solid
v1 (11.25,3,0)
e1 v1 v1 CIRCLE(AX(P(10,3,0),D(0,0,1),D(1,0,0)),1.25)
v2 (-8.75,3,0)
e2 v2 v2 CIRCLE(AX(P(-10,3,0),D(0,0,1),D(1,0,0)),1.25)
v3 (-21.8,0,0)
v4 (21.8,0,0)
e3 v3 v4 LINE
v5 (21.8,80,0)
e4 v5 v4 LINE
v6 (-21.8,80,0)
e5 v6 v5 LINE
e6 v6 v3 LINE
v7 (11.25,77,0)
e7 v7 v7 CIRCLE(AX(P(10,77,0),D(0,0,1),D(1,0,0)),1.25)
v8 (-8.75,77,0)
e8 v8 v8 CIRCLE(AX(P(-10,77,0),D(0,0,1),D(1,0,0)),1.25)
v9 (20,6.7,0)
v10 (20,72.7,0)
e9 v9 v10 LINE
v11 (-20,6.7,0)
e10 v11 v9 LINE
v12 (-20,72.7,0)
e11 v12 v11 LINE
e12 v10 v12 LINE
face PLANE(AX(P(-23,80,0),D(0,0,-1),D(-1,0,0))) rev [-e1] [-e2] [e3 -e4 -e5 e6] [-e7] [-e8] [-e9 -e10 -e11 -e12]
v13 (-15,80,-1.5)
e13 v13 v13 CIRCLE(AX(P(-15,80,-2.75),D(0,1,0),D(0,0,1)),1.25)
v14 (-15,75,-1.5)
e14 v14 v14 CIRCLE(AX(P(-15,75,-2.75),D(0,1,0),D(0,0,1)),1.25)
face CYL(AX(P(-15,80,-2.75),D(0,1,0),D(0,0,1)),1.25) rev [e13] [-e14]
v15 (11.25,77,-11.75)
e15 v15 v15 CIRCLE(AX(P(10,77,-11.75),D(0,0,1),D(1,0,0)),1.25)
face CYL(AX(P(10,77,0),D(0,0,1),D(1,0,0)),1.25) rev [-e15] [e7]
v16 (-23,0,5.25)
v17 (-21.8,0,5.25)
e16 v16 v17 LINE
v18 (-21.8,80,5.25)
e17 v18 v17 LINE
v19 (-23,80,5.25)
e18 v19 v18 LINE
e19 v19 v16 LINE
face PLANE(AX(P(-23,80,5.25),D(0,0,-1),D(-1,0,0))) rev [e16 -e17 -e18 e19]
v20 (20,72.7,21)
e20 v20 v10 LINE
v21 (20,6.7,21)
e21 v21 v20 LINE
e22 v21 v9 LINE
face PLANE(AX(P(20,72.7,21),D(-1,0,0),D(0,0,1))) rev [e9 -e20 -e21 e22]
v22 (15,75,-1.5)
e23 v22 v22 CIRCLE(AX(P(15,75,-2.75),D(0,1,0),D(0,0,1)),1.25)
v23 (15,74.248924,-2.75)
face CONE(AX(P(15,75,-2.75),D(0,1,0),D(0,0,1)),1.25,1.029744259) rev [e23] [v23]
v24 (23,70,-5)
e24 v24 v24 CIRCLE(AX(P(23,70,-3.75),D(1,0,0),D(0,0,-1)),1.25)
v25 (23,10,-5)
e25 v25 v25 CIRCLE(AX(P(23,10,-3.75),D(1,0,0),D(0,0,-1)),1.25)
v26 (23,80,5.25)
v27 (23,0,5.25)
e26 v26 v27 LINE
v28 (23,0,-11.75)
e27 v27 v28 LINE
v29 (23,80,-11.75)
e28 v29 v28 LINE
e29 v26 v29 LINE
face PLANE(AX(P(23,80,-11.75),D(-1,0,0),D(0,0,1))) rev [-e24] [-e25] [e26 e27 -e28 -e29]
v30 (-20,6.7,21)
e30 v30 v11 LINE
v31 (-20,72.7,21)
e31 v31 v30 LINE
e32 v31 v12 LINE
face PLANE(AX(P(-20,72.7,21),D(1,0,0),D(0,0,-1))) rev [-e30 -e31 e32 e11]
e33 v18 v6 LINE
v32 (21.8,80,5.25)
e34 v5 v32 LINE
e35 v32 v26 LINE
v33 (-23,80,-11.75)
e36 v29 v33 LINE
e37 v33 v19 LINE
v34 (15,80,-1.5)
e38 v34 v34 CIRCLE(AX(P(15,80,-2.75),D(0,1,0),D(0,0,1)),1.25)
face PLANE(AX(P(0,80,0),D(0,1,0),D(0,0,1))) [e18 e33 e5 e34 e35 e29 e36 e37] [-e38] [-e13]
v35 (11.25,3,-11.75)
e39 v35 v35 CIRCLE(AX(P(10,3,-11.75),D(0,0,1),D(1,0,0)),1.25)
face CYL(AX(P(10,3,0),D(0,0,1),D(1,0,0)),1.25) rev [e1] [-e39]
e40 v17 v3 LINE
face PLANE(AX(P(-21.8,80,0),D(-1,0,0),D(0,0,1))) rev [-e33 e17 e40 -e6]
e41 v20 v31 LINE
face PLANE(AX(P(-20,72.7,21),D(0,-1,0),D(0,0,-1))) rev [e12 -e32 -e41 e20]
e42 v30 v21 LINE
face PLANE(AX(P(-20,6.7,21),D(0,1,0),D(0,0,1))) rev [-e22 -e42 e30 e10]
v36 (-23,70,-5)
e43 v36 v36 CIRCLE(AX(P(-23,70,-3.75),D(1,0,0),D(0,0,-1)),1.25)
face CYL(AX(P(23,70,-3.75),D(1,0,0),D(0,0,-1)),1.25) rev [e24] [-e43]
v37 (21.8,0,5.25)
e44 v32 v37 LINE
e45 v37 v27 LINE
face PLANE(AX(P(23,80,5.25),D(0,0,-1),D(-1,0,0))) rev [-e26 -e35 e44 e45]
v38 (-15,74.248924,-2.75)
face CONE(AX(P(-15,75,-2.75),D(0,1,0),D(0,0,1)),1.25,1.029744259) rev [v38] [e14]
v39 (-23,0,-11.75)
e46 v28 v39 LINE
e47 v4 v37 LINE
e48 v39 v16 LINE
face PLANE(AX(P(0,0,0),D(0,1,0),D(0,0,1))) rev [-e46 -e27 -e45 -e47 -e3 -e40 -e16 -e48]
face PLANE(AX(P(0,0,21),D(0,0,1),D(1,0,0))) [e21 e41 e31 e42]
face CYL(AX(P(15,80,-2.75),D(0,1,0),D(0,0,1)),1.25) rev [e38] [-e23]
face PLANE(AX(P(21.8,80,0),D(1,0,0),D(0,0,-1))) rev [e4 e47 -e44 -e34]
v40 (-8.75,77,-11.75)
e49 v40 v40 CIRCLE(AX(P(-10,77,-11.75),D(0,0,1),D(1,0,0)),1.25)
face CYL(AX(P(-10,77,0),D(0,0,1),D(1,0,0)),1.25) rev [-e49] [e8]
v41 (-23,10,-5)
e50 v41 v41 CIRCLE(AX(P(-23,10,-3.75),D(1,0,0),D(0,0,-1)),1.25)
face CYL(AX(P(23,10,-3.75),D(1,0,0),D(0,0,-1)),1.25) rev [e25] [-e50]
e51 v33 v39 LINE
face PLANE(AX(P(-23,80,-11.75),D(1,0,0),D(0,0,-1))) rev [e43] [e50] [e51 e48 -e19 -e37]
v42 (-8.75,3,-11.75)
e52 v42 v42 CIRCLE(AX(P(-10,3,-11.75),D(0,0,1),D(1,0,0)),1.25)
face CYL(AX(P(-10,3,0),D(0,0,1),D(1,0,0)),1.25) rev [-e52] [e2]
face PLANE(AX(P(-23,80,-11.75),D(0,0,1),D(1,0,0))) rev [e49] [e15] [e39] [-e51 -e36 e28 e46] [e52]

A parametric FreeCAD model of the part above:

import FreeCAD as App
import Part
import Sketcher

V = App.Vector
Q = App.Units.Quantity

doc = App.newDocument("Part")
body = doc.addObject("PartDesign::Body", "Body")

# Sketch on XZ plane
sketch1 = doc.addObject("Sketcher::SketchObject", "Sketch")
body.addObject(sketch1)
sketch1.AttachmentSupport = (doc.XZ_Plane, [""])
sketch1.MapMode = "FlatFace"
sketch1.addGeometry([
    Part.LineSegment(V(-23, -11.75, 0), V(-23, 0, 0)),
    Part.LineSegment(V(-23, 0, 0), V(23, 0, 0)),
    Part.LineSegment(V(23, 0, 0), V(23, -11.75, 0)),
    Part.LineSegment(V(23, -11.75, 0), V(-23, -11.75, 0)),
], False)
sketch1.addConstraint([
    Sketcher.Constraint("Coincident", 0, 2, 1, 1),
    Sketcher.Constraint("Coincident", 1, 2, 2, 1),
    Sketcher.Constraint("Coincident", 2, 2, 3, 1),
    Sketcher.Constraint("Coincident", 3, 2, 0, 1),
    Sketcher.Constraint("Vertical", 0),
    Sketcher.Constraint("Horizontal", 1),
    Sketcher.Constraint("Vertical", 2),
    Sketcher.Constraint("Horizontal", 3),
    Sketcher.Constraint("Symmetric", 0, 2, 1, 2, -1, 1),
    Sketcher.Constraint("DistanceX", 1, 1, 1, 2, Q("46 mm")),
    Sketcher.Constraint("DistanceY", 0, 1, 0, 2, Q("11.75 mm")),
])
pad1 = doc.addObject("PartDesign::Pad", "Pad")
body.addObject(pad1)
pad1.Profile = sketch1
pad1.Length = 80
pad1.Reversed = True

# Sketch on XZ plane
sketch2 = doc.addObject("Sketcher::SketchObject", "Sketch001")
body.addObject(sketch2)
sketch2.AttachmentSupport = (doc.XZ_Plane, [""])
sketch2.MapMode = "FlatFace"
sketch2.addGeometry([
    Part.LineSegment(V(-23, 0, 0), V(-23, 5.25, 0)),  # 0
    Part.LineSegment(V(-23, 5.25, 0), V(-21.8, 5.25, 0)),  # 1
    Part.LineSegment(V(-21.8, 5.25, 0), V(-21.8, 0, 0)),  # 2
    Part.LineSegment(V(-21.8, 0, 0), V(-23, 0, 0)),  # 3
    Part.LineSegment(V(21.8, 0, 0), V(21.8, 5.25, 0)),  # 4
    Part.LineSegment(V(21.8, 5.25, 0), V(23, 5.25, 0)),  # 5
    Part.LineSegment(V(23, 5.25, 0), V(23, 0, 0)),  # 6
    Part.LineSegment(V(23, 0, 0), V(21.8, 0, 0)),  # 7
], False)
sketch2.addConstraint([
    Sketcher.Constraint("Coincident", 0, 2, 1, 1),
    Sketcher.Constraint("Coincident", 1, 2, 2, 1),
    Sketcher.Constraint("Coincident", 2, 2, 3, 1),
    Sketcher.Constraint("Coincident", 3, 2, 0, 1),
    Sketcher.Constraint("Coincident", 4, 2, 5, 1),
    Sketcher.Constraint("Coincident", 5, 2, 6, 1),
    Sketcher.Constraint("Coincident", 6, 2, 7, 1),
    Sketcher.Constraint("Coincident", 7, 2, 4, 1),
    Sketcher.Constraint("Vertical", 0),
    Sketcher.Constraint("Horizontal", 1),
    Sketcher.Constraint("Vertical", 2),
    Sketcher.Constraint("Horizontal", 3),
    Sketcher.Constraint("Vertical", 4),
    Sketcher.Constraint("Horizontal", 5),
    Sketcher.Constraint("Vertical", 6),
    Sketcher.Constraint("Horizontal", 7),
    Sketcher.Constraint("Symmetric", 3, 2, 6, 2, -1, 1),
    Sketcher.Constraint("Symmetric", 1, 2, 4, 2, -2),
    Sketcher.Constraint("PointOnObject", 2, 2, -1),
    Sketcher.Constraint("DistanceX", 1, 1, 1, 2, Q("1.2 mm")),
    Sketcher.Constraint("DistanceX", 0, 2, -1, 1, Q("23 mm")),
    Sketcher.Constraint("DistanceY", 0, 1, 0, 2, Q("5.25 mm")),
])
pad2 = doc.addObject("PartDesign::Pad", "Pad001")
body.addObject(pad2)
pad2.Profile = sketch2
pad2.Length = 80
pad2.Reversed = True

# Sketch on XY plane
sketch3 = doc.addObject("Sketcher::SketchObject", "Sketch002")
body.addObject(sketch3)
sketch3.AttachmentSupport = (doc.XY_Plane, [""])
sketch3.MapMode = "FlatFace"
sketch3.addGeometry([
    Part.LineSegment(V(-20, 72.7, 0), V(-20, 6.7, 0)),
    Part.LineSegment(V(-20, 6.7, 0), V(20, 6.7, 0)),
    Part.LineSegment(V(20, 6.7, 0), V(20, 72.7, 0)),
    Part.LineSegment(V(20, 72.7, 0), V(-20, 72.7, 0)),
], False)
sketch3.addConstraint([
    Sketcher.Constraint("Coincident", 0, 2, 1, 1),
    Sketcher.Constraint("Coincident", 1, 2, 2, 1),
    Sketcher.Constraint("Coincident", 2, 2, 3, 1),
    Sketcher.Constraint("Coincident", 3, 2, 0, 1),
    Sketcher.Constraint("Vertical", 0),
    Sketcher.Constraint("Horizontal", 1),
    Sketcher.Constraint("Vertical", 2),
    Sketcher.Constraint("Horizontal", 3),
    Sketcher.Constraint("DistanceX", 1, 1, 1, 2, Q("40 mm")),
    Sketcher.Constraint("DistanceY", 0, 2, 0, 1, Q("66 mm")),
    Sketcher.Constraint("DistanceX", 0, 2, -1, 1, Q("20 mm")),
    Sketcher.Constraint("DistanceY", -1, 1, 0, 2, Q("6.7 mm")),
])
pad3 = doc.addObject("PartDesign::Pad", "Pad002")
body.addObject(pad3)
pad3.Profile = sketch3
pad3.Length = 21

# Sketch on XY plane
sketch4 = doc.addObject("Sketcher::SketchObject", "Sketch003")
body.addObject(sketch4)
sketch4.AttachmentSupport = (doc.XY_Plane, [""])
sketch4.MapMode = "FlatFace"
sketch4.addGeometry([
    Part.Circle(V(-10, 77, 0), V(0, 0, 1), 1.25),
    Part.Circle(V(10, 77, 0), V(0, 0, 1), 1.25),
    Part.Circle(V(-10, 3, 0), V(0, 0, 1), 1.25),
    Part.Circle(V(10, 3, 0), V(0, 0, 1), 1.25),
], False)
sketch4.addConstraint([
    Sketcher.Constraint("Equal", 0, 1),
    Sketcher.Constraint("Equal", 1, 2),
    Sketcher.Constraint("Equal", 2, 3),
    Sketcher.Constraint("Symmetric", 0, 3, 1, 3, -2),
    Sketcher.Constraint("Symmetric", 2, 3, 3, 3, -2),
    Sketcher.Constraint("Vertical", 0, 3, 2, 3),
    Sketcher.Constraint("Diameter", 0, Q("2.5 mm")),
    Sketcher.Constraint("DistanceX", 0, 3, -1, 1, Q("10 mm")),
    Sketcher.Constraint("DistanceY", -1, 1, 0, 3, Q("77 mm")),
    Sketcher.Constraint("DistanceY", -1, 1, 2, 3, Q("3 mm")),
])
doc.recompute()
hole = doc.addObject("PartDesign::Hole", "Hole")
body.addObject(hole)
hole.Profile = sketch4
hole.ThreadType = "None"
hole.Diameter = 2.5
hole.DepthType = "ThroughAll"

# Sketch on XZ plane
sketch5 = doc.addObject("Sketcher::SketchObject", "Sketch004")
body.addObject(sketch5)
sketch5.AttachmentSupport = (doc.XZ_Plane, [""])
sketch5.MapMode = "FlatFace"
sketch5.AttachmentOffset = App.Placement(V(0, 0, -80), App.Rotation())
sketch5.addGeometry([
    Part.Circle(V(-15, -2.75, 0), V(0, 0, 1), 1.25),
    Part.Circle(V(15, -2.75, 0), V(0, 0, 1), 1.25),
], False)
sketch5.addConstraint([
    Sketcher.Constraint("Equal", 0, 1),
    Sketcher.Constraint("Symmetric", 0, 3, 1, 3, -2),
    Sketcher.Constraint("Diameter", 0, Q("2.5 mm")),
    Sketcher.Constraint("DistanceX", 0, 3, -1, 1, Q("15 mm")),
    Sketcher.Constraint("DistanceY", 0, 3, -1, 1, Q("2.75 mm")),
])
doc.recompute()
hole2 = doc.addObject("PartDesign::Hole", "Hole001")
body.addObject(hole2)
hole2.Profile = sketch5
hole2.ThreadType = "None"
hole2.Diameter = 2.5
hole2.DepthType = "Dimension"
hole2.Depth = 5
hole2.DrillPoint = "Angled"
hole2.DrillPointAngle = 118
hole2.Reversed = True

# Sketch on YZ plane
sketch6 = doc.addObject("Sketcher::SketchObject", "Sketch005")
body.addObject(sketch6)
sketch6.AttachmentSupport = (doc.YZ_Plane, [""])
sketch6.MapMode = "FlatFace"
sketch6.AttachmentOffset = App.Placement(V(0, 0, 23), App.Rotation())
sketch6.addGeometry([
    Part.Circle(V(70, -3.75, 0), V(0, 0, 1), 1.25),
    Part.Circle(V(10, -3.75, 0), V(0, 0, 1), 1.25),
], False)
sketch6.addConstraint([
    Sketcher.Constraint("Equal", 0, 1),
    Sketcher.Constraint("Horizontal", 0, 3, 1, 3),
    Sketcher.Constraint("Diameter", 0, Q("2.5 mm")),
    Sketcher.Constraint("DistanceX", -1, 1, 0, 3, Q("70 mm")),
    Sketcher.Constraint("DistanceX", -1, 1, 1, 3, Q("10 mm")),
    Sketcher.Constraint("DistanceY", 0, 3, -1, 1, Q("3.75 mm")),
])
doc.recompute()
hole3 = doc.addObject("PartDesign::Hole", "Hole002")
body.addObject(hole3)
hole3.Profile = sketch6
hole3.ThreadType = "None"
hole3.Diameter = 2.5
hole3.DepthType = "ThroughAll"

doc.recompute()
